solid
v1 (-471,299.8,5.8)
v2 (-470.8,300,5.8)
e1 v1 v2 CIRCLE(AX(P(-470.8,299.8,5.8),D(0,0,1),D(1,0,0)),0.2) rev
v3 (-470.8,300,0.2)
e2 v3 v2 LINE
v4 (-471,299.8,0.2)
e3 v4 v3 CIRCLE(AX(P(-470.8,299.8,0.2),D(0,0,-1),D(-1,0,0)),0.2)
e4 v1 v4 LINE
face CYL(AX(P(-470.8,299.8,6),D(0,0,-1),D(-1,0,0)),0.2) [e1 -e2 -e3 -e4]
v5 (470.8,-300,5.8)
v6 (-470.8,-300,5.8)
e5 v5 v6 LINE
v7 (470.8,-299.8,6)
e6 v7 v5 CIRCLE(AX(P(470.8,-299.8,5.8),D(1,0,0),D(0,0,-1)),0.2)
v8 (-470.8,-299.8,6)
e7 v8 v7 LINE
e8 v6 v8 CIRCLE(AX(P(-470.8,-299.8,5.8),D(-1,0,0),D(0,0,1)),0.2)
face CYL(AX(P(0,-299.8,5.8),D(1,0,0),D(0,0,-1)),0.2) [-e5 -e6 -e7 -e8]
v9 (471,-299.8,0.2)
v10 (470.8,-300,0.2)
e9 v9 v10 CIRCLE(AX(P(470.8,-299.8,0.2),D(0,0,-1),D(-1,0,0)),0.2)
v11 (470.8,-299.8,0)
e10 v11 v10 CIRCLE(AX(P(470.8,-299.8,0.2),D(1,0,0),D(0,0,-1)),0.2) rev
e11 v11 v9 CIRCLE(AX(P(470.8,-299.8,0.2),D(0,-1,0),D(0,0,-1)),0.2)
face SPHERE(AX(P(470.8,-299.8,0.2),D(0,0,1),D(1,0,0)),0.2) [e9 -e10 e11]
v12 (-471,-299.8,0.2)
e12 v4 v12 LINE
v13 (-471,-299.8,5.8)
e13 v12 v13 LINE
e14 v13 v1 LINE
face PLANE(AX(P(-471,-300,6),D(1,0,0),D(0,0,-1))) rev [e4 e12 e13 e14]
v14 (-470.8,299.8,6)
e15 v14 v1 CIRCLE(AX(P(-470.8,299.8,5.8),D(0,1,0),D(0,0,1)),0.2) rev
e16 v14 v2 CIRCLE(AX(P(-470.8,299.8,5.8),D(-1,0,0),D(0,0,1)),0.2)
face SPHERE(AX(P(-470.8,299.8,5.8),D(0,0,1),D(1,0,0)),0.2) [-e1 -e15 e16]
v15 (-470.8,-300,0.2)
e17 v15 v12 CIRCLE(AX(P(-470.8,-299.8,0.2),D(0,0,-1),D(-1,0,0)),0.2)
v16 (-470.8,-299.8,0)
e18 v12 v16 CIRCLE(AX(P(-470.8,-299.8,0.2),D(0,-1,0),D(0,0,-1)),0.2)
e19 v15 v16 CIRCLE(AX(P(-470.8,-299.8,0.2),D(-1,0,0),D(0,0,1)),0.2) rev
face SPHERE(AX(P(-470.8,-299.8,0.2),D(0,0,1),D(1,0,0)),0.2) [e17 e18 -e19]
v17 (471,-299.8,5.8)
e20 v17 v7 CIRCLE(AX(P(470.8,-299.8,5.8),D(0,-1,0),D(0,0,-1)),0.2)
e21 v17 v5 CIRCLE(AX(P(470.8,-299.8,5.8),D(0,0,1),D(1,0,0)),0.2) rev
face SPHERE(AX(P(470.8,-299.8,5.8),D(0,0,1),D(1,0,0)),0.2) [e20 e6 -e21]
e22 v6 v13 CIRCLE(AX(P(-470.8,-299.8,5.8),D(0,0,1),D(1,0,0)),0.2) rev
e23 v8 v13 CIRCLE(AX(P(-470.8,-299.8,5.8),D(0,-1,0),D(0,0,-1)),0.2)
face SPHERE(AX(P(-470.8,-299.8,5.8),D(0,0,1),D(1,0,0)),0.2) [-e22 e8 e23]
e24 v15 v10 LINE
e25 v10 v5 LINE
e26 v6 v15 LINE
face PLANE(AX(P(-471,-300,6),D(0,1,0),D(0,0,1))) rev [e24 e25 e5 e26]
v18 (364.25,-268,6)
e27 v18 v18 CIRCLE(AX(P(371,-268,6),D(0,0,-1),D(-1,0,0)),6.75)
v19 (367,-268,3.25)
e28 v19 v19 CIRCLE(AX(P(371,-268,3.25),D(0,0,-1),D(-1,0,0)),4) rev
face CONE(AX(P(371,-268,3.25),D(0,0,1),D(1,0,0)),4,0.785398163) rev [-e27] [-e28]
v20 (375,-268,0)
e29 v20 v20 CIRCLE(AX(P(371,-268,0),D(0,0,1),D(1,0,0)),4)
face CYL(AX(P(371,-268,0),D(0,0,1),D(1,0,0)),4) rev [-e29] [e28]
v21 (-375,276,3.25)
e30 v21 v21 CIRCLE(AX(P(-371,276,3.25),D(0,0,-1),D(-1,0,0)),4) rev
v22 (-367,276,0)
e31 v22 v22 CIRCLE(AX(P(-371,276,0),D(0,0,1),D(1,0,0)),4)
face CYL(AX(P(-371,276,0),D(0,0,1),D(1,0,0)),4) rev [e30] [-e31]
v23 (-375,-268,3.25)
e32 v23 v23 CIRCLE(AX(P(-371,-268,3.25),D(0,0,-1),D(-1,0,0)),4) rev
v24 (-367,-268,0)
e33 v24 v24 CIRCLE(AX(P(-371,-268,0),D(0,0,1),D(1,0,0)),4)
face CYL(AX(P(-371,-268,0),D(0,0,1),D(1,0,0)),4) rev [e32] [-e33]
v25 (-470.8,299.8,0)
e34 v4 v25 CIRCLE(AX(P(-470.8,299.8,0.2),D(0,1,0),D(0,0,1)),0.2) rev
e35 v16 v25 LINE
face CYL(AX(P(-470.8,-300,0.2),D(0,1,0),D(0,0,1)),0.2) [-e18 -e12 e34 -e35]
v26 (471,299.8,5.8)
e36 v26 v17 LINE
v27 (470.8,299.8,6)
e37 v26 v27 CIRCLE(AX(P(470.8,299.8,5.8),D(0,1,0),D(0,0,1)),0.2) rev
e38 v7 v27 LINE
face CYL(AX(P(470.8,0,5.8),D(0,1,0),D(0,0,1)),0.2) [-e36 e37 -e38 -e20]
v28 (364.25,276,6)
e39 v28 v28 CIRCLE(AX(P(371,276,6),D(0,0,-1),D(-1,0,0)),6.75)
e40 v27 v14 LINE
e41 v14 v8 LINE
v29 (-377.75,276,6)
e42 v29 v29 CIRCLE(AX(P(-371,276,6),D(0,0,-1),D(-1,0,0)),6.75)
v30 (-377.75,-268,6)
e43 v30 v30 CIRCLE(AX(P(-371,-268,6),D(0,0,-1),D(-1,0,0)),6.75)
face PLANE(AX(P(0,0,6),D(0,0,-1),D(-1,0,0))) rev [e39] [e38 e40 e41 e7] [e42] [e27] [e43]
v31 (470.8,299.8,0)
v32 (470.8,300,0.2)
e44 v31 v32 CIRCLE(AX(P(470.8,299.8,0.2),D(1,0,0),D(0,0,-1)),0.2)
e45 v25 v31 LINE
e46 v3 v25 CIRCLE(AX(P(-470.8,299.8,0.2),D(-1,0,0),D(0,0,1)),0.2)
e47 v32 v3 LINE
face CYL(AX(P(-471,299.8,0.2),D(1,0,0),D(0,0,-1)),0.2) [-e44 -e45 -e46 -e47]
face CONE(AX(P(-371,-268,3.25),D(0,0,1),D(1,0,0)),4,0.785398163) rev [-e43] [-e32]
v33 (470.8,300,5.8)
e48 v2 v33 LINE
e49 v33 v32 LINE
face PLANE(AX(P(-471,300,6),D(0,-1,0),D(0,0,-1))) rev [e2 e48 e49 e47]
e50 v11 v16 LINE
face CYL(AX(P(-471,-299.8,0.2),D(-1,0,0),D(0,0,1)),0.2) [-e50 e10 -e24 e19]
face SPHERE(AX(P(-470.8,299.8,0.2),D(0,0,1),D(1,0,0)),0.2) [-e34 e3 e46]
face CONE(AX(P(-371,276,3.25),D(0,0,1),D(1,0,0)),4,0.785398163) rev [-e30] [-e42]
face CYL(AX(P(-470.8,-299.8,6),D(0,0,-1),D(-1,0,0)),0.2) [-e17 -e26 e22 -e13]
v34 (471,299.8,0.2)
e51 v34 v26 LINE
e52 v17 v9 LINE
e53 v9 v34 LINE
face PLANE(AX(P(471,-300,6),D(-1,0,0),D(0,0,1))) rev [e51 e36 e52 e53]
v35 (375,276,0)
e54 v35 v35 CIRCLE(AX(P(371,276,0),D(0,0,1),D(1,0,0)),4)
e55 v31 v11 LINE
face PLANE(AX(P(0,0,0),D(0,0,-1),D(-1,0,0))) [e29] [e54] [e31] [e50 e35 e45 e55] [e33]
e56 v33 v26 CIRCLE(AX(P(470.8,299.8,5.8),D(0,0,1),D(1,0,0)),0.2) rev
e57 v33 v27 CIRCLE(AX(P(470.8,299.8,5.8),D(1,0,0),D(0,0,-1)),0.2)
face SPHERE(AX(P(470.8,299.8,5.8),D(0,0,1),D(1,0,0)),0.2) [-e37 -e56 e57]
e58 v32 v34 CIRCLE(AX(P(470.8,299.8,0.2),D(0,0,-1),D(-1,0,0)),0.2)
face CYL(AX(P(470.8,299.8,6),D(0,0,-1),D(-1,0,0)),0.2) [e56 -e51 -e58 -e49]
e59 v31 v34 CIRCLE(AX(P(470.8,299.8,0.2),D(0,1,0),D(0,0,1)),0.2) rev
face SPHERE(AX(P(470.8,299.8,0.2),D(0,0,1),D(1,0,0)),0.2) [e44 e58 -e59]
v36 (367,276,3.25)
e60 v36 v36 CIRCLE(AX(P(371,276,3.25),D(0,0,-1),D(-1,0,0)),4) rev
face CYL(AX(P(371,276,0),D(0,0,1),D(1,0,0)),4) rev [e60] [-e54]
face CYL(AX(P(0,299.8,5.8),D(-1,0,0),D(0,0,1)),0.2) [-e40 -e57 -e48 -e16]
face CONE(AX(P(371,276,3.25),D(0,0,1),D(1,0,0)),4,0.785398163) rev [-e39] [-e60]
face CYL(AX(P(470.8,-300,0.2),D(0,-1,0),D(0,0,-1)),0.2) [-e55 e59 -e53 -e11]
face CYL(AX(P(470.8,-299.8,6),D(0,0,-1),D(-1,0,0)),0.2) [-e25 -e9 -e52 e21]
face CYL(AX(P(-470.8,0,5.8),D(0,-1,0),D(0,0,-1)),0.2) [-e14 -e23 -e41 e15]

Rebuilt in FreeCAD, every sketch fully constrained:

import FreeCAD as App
import Part
import Sketcher

V = App.Vector
Q = App.Units.Quantity


def edges_at(feature, points):
    """Names of the edges that pass closest to the given points."""
    edges = feature.Shape.Edges
    near = lambda p: min(range(len(edges)), key=lambda i: edges[i].distToShape(Part.Vertex(*p))[0])
    return sorted({f"Edge{near(p) + 1}" for p in points})


def add_polygon(sketch, points):
    """Adds a closed chain of lines whose ends are joined by coincident constraints."""
    first, n = sketch.GeometryCount, len(points)
    for a, b in zip(points, points[1:] + points[:1]):
        sketch.addGeometry(Part.LineSegment(App.Vector(*a, 0), App.Vector(*b, 0)), False)
    for i in range(n):
        sketch.addConstraint(Sketcher.Constraint("Coincident", first + i, 2, first + (i + 1) % n, 1))

doc = App.newDocument("Part")
body = doc.addObject("PartDesign::Body", "Body")

# Sketch on XY plane
sketch1 = body.newObject("Sketcher::SketchObject", "Sketch")
sketch1.AttachmentSupport = (doc.getObject("XY_Plane"), [""])
sketch1.MapMode = "FlatFace"
add_polygon(sketch1, [(-471, 300), (-471, -300), (471, -300), (471, 300)])  # lines 0-3
sketch1.addConstraint(Sketcher.Constraint("Vertical", 0))
sketch1.addConstraint(Sketcher.Constraint("Horizontal", 1))
sketch1.addConstraint(Sketcher.Constraint("Vertical", 2))
sketch1.addConstraint(Sketcher.Constraint("Horizontal", 3))
sketch1.addConstraint(Sketcher.Constraint("Symmetric", 0, 2, 2, 2, -1, 1))
sketch1.addConstraint(Sketcher.Constraint("DistanceX", 1, 1, 1, 2, Q("942 mm")))
sketch1.addConstraint(Sketcher.Constraint("DistanceY", 0, 2, 0, 1, Q("600 mm")))
pad1 = body.newObject("PartDesign::Pad", "Pad")
pad1.Profile = sketch1
pad1.Length = 6

# Sketch on XY plane
sketch2 = body.newObject("Sketcher::SketchObject", "Sketch001")
sketch2.AttachmentSupport = (doc.getObject("XY_Plane"), [""])
sketch2.MapMode = "FlatFace"
sketch2.AttachmentOffset = App.Placement(V(0, 0, 6), App.Rotation())
sketch2.addGeometry(Part.Circle(V(-371, 276, 0), V(0, 0, 1), 4), False)
sketch2.addGeometry(Part.Circle(V(371, 276, 0), V(0, 0, 1), 4), False)
sketch2.addGeometry(Part.Circle(V(371, -268, 0), V(0, 0, 1), 4), False)
sketch2.addGeometry(Part.Circle(V(-371, -268, 0), V(0, 0, 1), 4), False)
sketch2.addConstraint(Sketcher.Constraint("Equal", 0, 1))
sketch2.addConstraint(Sketcher.Constraint("Equal", 1, 2))
sketch2.addConstraint(Sketcher.Constraint("Equal", 2, 3))
sketch2.addConstraint(Sketcher.Constraint("Symmetric", 0, 3, 1, 3, -2))
sketch2.addConstraint(Sketcher.Constraint("Symmetric", 2, 3, 3, 3, -2))
sketch2.addConstraint(Sketcher.Constraint("Vertical", 1, 3, 2, 3))
sketch2.addConstraint(Sketcher.Constraint("Diameter", 0, Q("8 mm")))
sketch2.addConstraint(Sketcher.Constraint("DistanceX", 0, 3, -1, 1, Q("371 mm")))
sketch2.addConstraint(Sketcher.Constraint("DistanceY", -1, 1, 0, 3, Q("276 mm")))
sketch2.addConstraint(Sketcher.Constraint("DistanceY", 2, 3, -1, 1, Q("268 mm")))
pocket1 = body.newObject("PartDesign::Pocket", "Pocket")
pocket1.Profile = sketch2
pocket1.Type = "ThroughAll"
doc.recompute()

chamfer = body.newObject("PartDesign::Chamfer", "Chamfer")
chamfer.Base = (pocket1, edges_at(pocket1, [
    (-375, 276, 6),
    (367, 276, 6),
    (367, -268, 6),
    (-375, -268, 6),
]))
chamfer.Size = 2.75
doc.recompute()

fillet = body.newObject("PartDesign::Fillet", "Fillet")
fillet.Base = (chamfer, edges_at(chamfer, [
    (-471, 0, 6),
    (0, -300, 6),
    (471, 0, 6),
    (0, -300, 0),
    (-471, 0, 0),
    (0, 300, 0),
    (471, 0, 0),
    (0, 300, 6),
    (471, -300, 3),
    (-471, -300, 3),
    (-471, 300, 3),
    (471, 300, 3),
]))
fillet.Radius = 0.2

doc.recompute()
